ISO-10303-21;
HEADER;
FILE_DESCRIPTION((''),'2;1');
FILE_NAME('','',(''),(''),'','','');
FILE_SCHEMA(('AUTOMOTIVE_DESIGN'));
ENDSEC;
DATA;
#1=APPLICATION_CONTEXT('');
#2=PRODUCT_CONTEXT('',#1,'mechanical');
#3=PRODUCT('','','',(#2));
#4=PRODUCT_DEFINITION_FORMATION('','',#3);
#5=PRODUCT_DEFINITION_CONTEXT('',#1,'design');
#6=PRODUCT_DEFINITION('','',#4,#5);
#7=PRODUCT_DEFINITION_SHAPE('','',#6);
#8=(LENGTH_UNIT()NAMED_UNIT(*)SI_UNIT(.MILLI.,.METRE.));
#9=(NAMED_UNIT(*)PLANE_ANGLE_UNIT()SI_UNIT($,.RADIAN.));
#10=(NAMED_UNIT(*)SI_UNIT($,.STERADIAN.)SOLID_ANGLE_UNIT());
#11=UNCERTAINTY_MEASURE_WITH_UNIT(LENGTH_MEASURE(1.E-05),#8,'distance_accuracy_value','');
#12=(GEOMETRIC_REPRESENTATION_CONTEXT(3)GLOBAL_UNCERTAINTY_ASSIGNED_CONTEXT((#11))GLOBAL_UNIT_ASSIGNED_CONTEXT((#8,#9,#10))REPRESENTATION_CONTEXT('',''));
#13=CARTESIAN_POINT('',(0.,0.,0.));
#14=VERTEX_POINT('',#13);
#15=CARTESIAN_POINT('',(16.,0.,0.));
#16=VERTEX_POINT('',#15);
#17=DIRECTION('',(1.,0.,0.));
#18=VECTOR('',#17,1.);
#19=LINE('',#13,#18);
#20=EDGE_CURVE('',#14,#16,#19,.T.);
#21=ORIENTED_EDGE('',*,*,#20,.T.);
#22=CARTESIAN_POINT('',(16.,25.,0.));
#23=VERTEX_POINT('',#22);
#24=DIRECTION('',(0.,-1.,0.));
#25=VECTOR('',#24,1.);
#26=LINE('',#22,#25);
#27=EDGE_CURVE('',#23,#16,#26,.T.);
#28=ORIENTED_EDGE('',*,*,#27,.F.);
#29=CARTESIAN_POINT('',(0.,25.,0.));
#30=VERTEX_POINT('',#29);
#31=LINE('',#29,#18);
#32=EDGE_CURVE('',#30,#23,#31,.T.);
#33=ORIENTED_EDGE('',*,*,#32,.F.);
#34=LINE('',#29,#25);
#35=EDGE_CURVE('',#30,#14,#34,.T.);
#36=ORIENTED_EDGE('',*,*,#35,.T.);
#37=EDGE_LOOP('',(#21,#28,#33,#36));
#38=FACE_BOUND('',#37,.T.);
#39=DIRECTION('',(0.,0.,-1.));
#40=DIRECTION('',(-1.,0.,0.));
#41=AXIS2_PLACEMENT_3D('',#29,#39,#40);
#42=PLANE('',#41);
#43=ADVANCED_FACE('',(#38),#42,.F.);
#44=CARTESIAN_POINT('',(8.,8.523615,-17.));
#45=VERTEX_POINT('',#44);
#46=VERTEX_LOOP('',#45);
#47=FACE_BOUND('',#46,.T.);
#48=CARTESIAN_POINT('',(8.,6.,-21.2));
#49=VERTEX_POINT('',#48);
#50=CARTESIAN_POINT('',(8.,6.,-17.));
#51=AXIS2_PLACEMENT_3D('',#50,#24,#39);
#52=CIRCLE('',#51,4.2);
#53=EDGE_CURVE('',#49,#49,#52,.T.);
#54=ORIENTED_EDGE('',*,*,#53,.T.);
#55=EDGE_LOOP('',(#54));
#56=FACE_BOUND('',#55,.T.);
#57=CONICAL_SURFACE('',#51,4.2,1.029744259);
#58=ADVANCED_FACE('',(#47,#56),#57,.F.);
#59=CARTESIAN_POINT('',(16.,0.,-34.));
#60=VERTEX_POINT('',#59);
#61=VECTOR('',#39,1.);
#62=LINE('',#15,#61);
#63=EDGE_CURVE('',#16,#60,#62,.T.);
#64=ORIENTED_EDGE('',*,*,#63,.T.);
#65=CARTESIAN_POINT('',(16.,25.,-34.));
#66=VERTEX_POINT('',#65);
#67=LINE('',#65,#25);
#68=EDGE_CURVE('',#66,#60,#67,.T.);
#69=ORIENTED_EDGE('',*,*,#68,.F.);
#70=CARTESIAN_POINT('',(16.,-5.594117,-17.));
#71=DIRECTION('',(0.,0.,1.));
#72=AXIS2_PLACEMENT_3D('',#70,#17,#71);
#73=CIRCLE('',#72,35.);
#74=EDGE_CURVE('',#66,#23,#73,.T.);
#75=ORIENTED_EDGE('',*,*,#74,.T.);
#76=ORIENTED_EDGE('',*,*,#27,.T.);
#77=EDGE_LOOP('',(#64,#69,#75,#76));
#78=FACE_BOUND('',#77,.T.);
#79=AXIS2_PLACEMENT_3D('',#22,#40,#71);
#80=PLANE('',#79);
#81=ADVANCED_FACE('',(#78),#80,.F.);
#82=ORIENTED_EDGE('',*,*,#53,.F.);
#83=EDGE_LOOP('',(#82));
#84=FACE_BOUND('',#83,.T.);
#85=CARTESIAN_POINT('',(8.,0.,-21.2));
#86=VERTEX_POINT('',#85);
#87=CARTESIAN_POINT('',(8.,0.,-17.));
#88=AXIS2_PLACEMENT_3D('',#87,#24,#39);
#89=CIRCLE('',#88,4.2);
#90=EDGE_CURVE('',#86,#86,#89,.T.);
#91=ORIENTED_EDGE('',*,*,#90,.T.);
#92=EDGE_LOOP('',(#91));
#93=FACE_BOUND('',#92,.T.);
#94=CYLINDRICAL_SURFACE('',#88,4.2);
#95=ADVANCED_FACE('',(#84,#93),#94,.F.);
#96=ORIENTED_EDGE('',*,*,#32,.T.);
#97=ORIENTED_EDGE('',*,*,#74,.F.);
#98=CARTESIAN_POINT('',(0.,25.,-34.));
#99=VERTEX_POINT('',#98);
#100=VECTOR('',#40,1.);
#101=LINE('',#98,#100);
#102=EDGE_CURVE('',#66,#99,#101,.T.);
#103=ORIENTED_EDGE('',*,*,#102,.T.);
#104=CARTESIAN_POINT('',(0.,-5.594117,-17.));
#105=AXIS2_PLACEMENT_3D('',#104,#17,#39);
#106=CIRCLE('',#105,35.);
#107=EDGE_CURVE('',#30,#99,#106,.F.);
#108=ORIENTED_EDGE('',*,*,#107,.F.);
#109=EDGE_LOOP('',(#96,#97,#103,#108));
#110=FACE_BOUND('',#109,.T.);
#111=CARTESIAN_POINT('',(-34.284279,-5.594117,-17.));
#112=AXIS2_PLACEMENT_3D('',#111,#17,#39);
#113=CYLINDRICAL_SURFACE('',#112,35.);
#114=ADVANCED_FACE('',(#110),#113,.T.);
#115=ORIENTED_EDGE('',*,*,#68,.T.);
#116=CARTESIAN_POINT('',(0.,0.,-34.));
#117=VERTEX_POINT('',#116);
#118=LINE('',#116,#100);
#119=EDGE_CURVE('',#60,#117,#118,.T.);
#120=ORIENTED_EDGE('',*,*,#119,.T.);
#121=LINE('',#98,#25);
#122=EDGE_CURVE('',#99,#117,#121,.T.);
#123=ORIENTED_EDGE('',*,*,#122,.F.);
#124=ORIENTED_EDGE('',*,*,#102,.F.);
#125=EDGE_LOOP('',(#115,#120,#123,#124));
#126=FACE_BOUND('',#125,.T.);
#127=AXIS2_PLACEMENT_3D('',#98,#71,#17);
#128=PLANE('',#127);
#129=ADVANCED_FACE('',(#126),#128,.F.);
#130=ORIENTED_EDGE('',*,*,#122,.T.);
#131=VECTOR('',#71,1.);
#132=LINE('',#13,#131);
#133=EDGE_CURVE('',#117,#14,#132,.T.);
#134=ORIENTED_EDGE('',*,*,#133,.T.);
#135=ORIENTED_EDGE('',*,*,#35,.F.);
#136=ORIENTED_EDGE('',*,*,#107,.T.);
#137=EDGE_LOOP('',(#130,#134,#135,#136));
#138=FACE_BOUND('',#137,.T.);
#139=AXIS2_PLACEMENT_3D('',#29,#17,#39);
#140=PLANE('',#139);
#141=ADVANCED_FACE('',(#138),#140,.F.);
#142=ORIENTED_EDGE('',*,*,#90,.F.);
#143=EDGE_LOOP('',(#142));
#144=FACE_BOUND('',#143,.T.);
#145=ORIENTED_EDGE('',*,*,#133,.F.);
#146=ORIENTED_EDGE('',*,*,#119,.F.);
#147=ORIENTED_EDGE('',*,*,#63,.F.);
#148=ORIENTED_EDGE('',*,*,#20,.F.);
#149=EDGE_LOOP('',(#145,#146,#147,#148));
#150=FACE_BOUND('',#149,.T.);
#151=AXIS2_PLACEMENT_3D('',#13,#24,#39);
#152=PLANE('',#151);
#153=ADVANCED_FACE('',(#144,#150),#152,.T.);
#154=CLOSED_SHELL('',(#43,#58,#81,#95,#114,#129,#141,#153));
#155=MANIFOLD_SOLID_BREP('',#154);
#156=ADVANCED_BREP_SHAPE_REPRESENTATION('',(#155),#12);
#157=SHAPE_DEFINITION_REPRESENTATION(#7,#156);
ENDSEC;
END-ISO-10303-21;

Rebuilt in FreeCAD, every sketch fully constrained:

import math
import FreeCAD as App
import Part
import Sketcher


def add_polygon(sketch, points):
    """Adds a closed chain of lines whose ends are joined by coincident constraints."""
    first, n = sketch.GeometryCount, len(points)
    for a, b in zip(points, points[1:] + points[:1]):
        sketch.addGeometry(Part.LineSegment(App.Vector(*a, 0), App.Vector(*b, 0)), False)
    for i in range(n):
        sketch.addConstraint(Sketcher.Constraint("Coincident", first + i, 2, first + (i + 1) % n, 1))

doc = App.newDocument("Part")
body = doc.addObject("PartDesign::Body", "Body")

# Sketch on XZ plane
sketch1 = body.newObject("Sketcher::SketchObject", "Sketch")
sketch1.AttachmentSupport = (doc.getObject("XZ_Plane"), [""])
sketch1.MapMode = "FlatFace"
add_polygon(sketch1, [(0, -34), (0, 0), (16, 0), (16, -34)])  # lines 0-3
sketch1.addConstraint(Sketcher.Constraint("Vertical", 0))
sketch1.addConstraint(Sketcher.Constraint("Horizontal", 1))
sketch1.addConstraint(Sketcher.Constraint("Vertical", 2))
sketch1.addConstraint(Sketcher.Constraint("Horizontal", 3))
sketch1.addConstraint(Sketcher.Constraint("Coincident", 0, 2, -1, 1))
sketch1.addConstraint(Sketcher.Constraint("DistanceX", 1, 1, 1, 2, 16.0))
sketch1.addConstraint(Sketcher.Constraint("DistanceY", 0, 1, 0, 2, 34.0))
pad1 = body.newObject("PartDesign::Pad", "Pad")
pad1.Profile = sketch1
pad1.Length = 25
pad1.Reversed = True

# Sketch on YZ plane
sketch2 = body.newObject("Sketcher::SketchObject", "Sketch001")
sketch2.AttachmentSupport = (doc.getObject("YZ_Plane"), [""])
sketch2.MapMode = "FlatFace"
sketch2.AttachmentOffset = App.Placement(App.Vector(0, 0, 16), App.Rotation())
sketch2.addGeometry(Part.LineSegment(App.Vector(25, 0, 0), App.Vector(25, -34, 0)), False)
sketch2.addGeometry(Part.ArcOfCircle(Part.Circle(App.Vector(-6, -17, 0), App.Vector(0, 0, 1), 35), math.radians(-29), math.radians(29)), False)
sketch2.addConstraint(Sketcher.Constraint("Coincident", 0, 1, 1, 2))
sketch2.addConstraint(Sketcher.Constraint("Coincident", 1, 1, 0, 2))
sketch2.addConstraint(Sketcher.Constraint("Vertical", 0))
sketch2.addConstraint(Sketcher.Constraint("PointOnObject", 0, 1, -1))
sketch2.addConstraint(Sketcher.Constraint("Radius", 1, 35.0))
sketch2.addConstraint(Sketcher.Constraint("DistanceY", 0, 2, 0, 1, 34.0))
sketch2.addConstraint(Sketcher.Constraint("DistanceX", -1, 1, 0, 1, 25.0))
pad2 = body.newObject("PartDesign::Pad", "Pad001")
pad2.Profile = sketch2
pad2.Length = 16
pad2.Reversed = True

# Sketch on XZ plane
sketch3 = body.newObject("Sketcher::SketchObject", "Sketch002")
sketch3.AttachmentSupport = (doc.getObject("XZ_Plane"), [""])
sketch3.MapMode = "FlatFace"
sketch3.addGeometry(Part.Circle(App.Vector(8, -17, 0), App.Vector(0, 0, 1), 4.2), False)
sketch3.addConstraint(Sketcher.Constraint("Diameter", 0, 8.4))
sketch3.addConstraint(Sketcher.Constraint("DistanceX", -1, 1, 0, 3, 8.0))
sketch3.addConstraint(Sketcher.Constraint("DistanceY", 0, 3, -1, 1, 17.0))
doc.recompute()
hole = body.newObject("PartDesign::Hole", "Hole")
hole.Profile = sketch3
hole.ThreadType = "None"
hole.Diameter = 8.4
hole.DepthType = "Dimension"
hole.Depth = 6
hole.DrillPoint = "Angled"
hole.DrillPointAngle = 118

doc.recompute()
